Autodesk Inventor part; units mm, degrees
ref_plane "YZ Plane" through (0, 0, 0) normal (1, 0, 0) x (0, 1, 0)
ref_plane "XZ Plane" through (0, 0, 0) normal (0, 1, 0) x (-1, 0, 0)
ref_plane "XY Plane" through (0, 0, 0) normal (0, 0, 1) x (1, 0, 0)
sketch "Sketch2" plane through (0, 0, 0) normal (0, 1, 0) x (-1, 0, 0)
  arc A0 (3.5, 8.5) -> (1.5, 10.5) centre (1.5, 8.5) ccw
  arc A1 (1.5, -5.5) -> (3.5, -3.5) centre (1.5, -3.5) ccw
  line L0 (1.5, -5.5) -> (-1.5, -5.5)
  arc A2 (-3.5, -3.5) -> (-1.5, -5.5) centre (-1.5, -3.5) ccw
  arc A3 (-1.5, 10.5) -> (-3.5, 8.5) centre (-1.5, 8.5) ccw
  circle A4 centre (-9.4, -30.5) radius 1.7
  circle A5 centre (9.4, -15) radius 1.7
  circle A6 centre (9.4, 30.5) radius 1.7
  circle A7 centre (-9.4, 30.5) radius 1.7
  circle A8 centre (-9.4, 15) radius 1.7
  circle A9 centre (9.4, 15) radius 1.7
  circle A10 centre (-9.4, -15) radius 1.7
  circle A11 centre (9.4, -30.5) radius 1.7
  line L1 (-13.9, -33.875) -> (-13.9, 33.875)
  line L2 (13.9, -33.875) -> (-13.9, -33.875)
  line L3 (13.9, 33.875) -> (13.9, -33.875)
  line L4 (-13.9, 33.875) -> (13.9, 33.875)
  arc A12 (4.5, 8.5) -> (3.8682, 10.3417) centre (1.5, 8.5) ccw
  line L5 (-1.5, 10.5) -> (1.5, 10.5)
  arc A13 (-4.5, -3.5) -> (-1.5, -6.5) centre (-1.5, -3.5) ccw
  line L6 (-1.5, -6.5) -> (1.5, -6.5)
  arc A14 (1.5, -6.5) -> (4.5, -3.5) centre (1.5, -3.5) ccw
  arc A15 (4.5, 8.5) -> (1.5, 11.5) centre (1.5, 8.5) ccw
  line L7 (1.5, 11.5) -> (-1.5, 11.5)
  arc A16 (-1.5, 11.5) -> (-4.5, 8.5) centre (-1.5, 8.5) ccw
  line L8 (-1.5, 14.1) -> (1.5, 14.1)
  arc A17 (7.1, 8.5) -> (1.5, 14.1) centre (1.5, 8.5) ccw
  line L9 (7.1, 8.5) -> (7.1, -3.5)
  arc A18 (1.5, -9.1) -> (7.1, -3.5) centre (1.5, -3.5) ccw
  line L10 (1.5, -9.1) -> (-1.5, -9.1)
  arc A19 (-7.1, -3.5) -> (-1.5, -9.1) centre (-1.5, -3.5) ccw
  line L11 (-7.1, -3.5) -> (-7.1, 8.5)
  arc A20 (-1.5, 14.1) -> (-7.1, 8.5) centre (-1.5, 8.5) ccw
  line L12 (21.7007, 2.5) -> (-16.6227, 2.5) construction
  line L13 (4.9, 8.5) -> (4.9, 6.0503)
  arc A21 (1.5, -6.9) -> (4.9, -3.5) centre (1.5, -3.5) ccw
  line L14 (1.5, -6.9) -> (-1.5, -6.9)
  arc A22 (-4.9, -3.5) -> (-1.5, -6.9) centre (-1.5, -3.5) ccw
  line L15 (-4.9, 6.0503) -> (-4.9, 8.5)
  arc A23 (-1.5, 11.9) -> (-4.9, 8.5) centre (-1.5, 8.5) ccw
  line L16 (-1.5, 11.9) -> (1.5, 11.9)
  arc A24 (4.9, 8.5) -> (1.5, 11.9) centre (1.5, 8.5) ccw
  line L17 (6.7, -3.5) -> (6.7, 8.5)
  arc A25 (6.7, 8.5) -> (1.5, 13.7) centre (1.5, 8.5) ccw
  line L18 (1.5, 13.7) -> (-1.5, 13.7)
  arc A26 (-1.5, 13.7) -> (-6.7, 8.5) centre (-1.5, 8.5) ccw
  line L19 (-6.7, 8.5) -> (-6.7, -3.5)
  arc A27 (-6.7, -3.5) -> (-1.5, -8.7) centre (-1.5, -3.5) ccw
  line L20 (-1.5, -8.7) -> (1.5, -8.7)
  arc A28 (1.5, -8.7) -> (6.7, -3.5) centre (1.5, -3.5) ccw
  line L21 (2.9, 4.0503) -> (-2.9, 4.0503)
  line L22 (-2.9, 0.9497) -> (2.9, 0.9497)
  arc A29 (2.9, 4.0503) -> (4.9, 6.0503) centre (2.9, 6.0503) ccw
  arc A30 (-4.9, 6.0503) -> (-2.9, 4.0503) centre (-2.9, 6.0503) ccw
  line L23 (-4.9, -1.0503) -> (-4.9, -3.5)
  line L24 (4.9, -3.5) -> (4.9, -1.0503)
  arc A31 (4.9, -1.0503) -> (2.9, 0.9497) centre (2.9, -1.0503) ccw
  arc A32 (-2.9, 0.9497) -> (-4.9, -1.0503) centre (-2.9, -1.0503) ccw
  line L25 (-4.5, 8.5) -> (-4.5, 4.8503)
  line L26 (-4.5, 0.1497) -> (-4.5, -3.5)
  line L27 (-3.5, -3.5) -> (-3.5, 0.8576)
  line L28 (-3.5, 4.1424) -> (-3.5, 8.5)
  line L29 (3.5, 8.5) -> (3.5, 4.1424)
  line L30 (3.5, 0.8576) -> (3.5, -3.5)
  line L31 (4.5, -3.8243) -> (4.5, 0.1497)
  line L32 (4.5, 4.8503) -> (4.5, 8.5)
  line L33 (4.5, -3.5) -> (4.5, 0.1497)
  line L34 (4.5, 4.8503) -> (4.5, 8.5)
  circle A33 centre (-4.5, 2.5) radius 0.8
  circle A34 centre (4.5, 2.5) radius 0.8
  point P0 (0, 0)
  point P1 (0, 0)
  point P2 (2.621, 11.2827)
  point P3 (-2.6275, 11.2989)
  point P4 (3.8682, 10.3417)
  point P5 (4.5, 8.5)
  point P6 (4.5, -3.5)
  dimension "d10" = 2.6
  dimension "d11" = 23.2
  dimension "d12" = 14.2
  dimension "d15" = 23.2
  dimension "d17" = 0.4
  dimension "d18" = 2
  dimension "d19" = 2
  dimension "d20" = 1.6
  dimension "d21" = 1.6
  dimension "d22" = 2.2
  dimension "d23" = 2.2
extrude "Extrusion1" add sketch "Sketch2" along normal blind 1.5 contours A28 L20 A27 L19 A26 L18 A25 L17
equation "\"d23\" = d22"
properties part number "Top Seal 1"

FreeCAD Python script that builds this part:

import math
import FreeCAD as App
import Part
import Sketcher

V = App.Vector
Q = App.Units.Quantity

doc = App.newDocument("Part")
body = doc.addObject("PartDesign::Body", "Body")

# Sketch on XZ plane
sketch1 = body.newObject("Sketcher::SketchObject", "Sketch")
sketch1.AttachmentSupport = (doc.getObject("XZ_Plane"), [""])
sketch1.MapMode = "FlatFace"
sketch1.addGeometry(Part.ArcOfCircle(Part.Circle(V(-1.5, -3.5, 0), V(0, 0, 1), 5.2), math.radians(180), math.radians(270)), False)
sketch1.addGeometry(Part.LineSegment(V(-6.7, -3.5, 0), V(-6.7, 8.5, 0)), False)
sketch1.addGeometry(Part.ArcOfCircle(Part.Circle(V(-1.5, 8.5, 0), V(0, 0, 1), 5.2), math.radians(90), math.radians(180)), False)
sketch1.addGeometry(Part.LineSegment(V(-1.5, 13.7, 0), V(1.5, 13.7, 0)), False)
sketch1.addGeometry(Part.ArcOfCircle(Part.Circle(V(1.5, 8.5, 0), V(0, 0, 1), 5.2), math.radians(0), math.radians(90)), False)
sketch1.addGeometry(Part.LineSegment(V(6.7, 8.5, 0), V(6.7, -3.5, 0)), False)
sketch1.addGeometry(Part.ArcOfCircle(Part.Circle(V(1.5, -3.5, 0), V(0, 0, 1), 5.2), math.radians(-90), math.radians(0)), False)
sketch1.addGeometry(Part.LineSegment(V(1.5, -8.7, 0), V(-1.5, -8.7, 0)), False)
sketch1.addGeometry(Part.ArcOfCircle(Part.Circle(V(-2.9, -1.1, 0), V(0, 0, 1), 2), math.radians(90), math.radians(180)), False)
sketch1.addGeometry(Part.LineSegment(V(-4.9, -1.1, 0), V(-4.9, -3.5, 0)), False)
sketch1.addGeometry(Part.ArcOfCircle(Part.Circle(V(-1.5, -3.5, 0), V(0, 0, 1), 3.4), math.radians(180), math.radians(270)), False)
sketch1.addGeometry(Part.LineSegment(V(-1.5, -6.9, 0), V(1.5, -6.9, 0)), False)
sketch1.addGeometry(Part.ArcOfCircle(Part.Circle(V(1.5, -3.5, 0), V(0, 0, 1), 3.4), math.radians(-90), math.radians(0)), False)
sketch1.addGeometry(Part.LineSegment(V(4.9, -3.5, 0), V(4.9, -1.1, 0)), False)
sketch1.addGeometry(Part.ArcOfCircle(Part.Circle(V(2.9, -1.1, 0), V(0, 0, 1), 2), math.radians(0), math.radians(90)), False)
sketch1.addGeometry(Part.LineSegment(V(2.9, 0.9, 0), V(-2.9, 0.9, 0)), False)
sketch1.addGeometry(Part.Circle(V(4.5, 2.5, 0), V(0, 0, 1), 0.8), False)
sketch1.addGeometry(Part.ArcOfCircle(Part.Circle(V(-2.9, 6.1, 0), V(0, 0, 1), 2), math.radians(180), math.radians(270)), False)
sketch1.addGeometry(Part.LineSegment(V(-2.9, 4.1, 0), V(2.9, 4.1, 0)), False)
sketch1.addGeometry(Part.ArcOfCircle(Part.Circle(V(2.9, 6.1, 0), V(0, 0, 1), 2), math.radians(-90), math.radians(0)), False)
sketch1.addGeometry(Part.LineSegment(V(4.9, 6.1, 0), V(4.9, 8.5, 0)), False)
sketch1.addGeometry(Part.ArcOfCircle(Part.Circle(V(1.5, 8.5, 0), V(0, 0, 1), 3.4), math.radians(0), math.radians(90)), False)
sketch1.addGeometry(Part.LineSegment(V(1.5, 11.9, 0), V(-1.5, 11.9, 0)), False)
sketch1.addGeometry(Part.ArcOfCircle(Part.Circle(V(-1.5, 8.5, 0), V(0, 0, 1), 3.4), math.radians(90), math.radians(180)), False)
sketch1.addGeometry(Part.LineSegment(V(-4.9, 8.5, 0), V(-4.9, 6.1, 0)), False)
sketch1.addGeometry(Part.Circle(V(-4.5, 2.5, 0), V(0, 0, 1), 0.8), False)
sketch1.addConstraint(Sketcher.Constraint("Tangent", 0, 1, 1, 1))
sketch1.addConstraint(Sketcher.Constraint("Tangent", 1, 2, 2, 2))
sketch1.addConstraint(Sketcher.Constraint("Tangent", 2, 1, 3, 1))
sketch1.addConstraint(Sketcher.Constraint("Tangent", 3, 2, 4, 2))
sketch1.addConstraint(Sketcher.Constraint("Tangent", 4, 1, 5, 1))
sketch1.addConstraint(Sketcher.Constraint("Tangent", 5, 2, 6, 2))
sketch1.addConstraint(Sketcher.Constraint("Tangent", 6, 1, 7, 1))
sketch1.addConstraint(Sketcher.Constraint("Tangent", 7, 2, 0, 2))
sketch1.addConstraint(Sketcher.Constraint("Tangent", 8, 2, 9, 1))
sketch1.addConstraint(Sketcher.Constraint("Tangent", 9, 2, 10, 1))
sketch1.addConstraint(Sketcher.Constraint("Tangent", 10, 2, 11, 1))
sketch1.addConstraint(Sketcher.Constraint("Tangent", 11, 2, 12, 1))
sketch1.addConstraint(Sketcher.Constraint("Tangent", 12, 2, 13, 1))
sketch1.addConstraint(Sketcher.Constraint("Tangent", 13, 2, 14, 1))
sketch1.addConstraint(Sketcher.Constraint("Tangent", 14, 2, 15, 1))
sketch1.addConstraint(Sketcher.Constraint("Tangent", 15, 2, 8, 1))
sketch1.addConstraint(Sketcher.Constraint("Tangent", 17, 2, 18, 1))
sketch1.addConstraint(Sketcher.Constraint("Tangent", 18, 2, 19, 1))
sketch1.addConstraint(Sketcher.Constraint("Tangent", 19, 2, 20, 1))
sketch1.addConstraint(Sketcher.Constraint("Tangent", 20, 2, 21, 1))
sketch1.addConstraint(Sketcher.Constraint("Tangent", 21, 2, 22, 1))
sketch1.addConstraint(Sketcher.Constraint("Tangent", 22, 2, 23, 1))
sketch1.addConstraint(Sketcher.Constraint("Tangent", 23, 2, 24, 1))
sketch1.addConstraint(Sketcher.Constraint("Tangent", 24, 2, 17, 1))
sketch1.addConstraint(Sketcher.Constraint("Vertical", 1))
sketch1.addConstraint(Sketcher.Constraint("Horizontal", 3))
sketch1.addConstraint(Sketcher.Constraint("Vertical", 5))
sketch1.addConstraint(Sketcher.Constraint("Horizontal", 7))
sketch1.addConstraint(Sketcher.Constraint("Vertical", 9))
sketch1.addConstraint(Sketcher.Constraint("Horizontal", 11))
sketch1.addConstraint(Sketcher.Constraint("Vertical", 13))
sketch1.addConstraint(Sketcher.Constraint("Horizontal", 15))
sketch1.addConstraint(Sketcher.Constraint("Horizontal", 18))
sketch1.addConstraint(Sketcher.Constraint("Vertical", 20))
sketch1.addConstraint(Sketcher.Constraint("Horizontal", 22))
sketch1.addConstraint(Sketcher.Constraint("Vertical", 24))
sketch1.addConstraint(Sketcher.Constraint("Coincident", 10, 3, 0, 3))
sketch1.addConstraint(Sketcher.Constraint("Coincident", 12, 3, 6, 3))
sketch1.addConstraint(Sketcher.Constraint("Coincident", 21, 3, 4, 3))
sketch1.addConstraint(Sketcher.Constraint("Coincident", 23, 3, 2, 3))
sketch1.addConstraint(Sketcher.Constraint("Equal", 0, 2))
sketch1.addConstraint(Sketcher.Constraint("Equal", 2, 4))
sketch1.addConstraint(Sketcher.Constraint("Equal", 4, 6))
sketch1.addConstraint(Sketcher.Constraint("Equal", 8, 14))
sketch1.addConstraint(Sketcher.Constraint("Equal", 14, 17))
sketch1.addConstraint(Sketcher.Constraint("Equal", 17, 19))
sketch1.addConstraint(Sketcher.Constraint("Equal", 12, 21))
sketch1.addConstraint(Sketcher.Constraint("Equal", 16, 25))
sketch1.addConstraint(Sketcher.Constraint("Symmetric", 16, 3, 25, 3, -2))
sketch1.addConstraint(Sketcher.Constraint("Equal", 13, 20))
sketch1.addConstraint(Sketcher.Constraint("Radius", 8, Q("2 mm")))
sketch1.addConstraint(Sketcher.Constraint("Diameter", 16, Q("1.6 mm")))
sketch1.addConstraint(Sketcher.Constraint("Radius", 0, Q("5.2 mm")))
sketch1.addConstraint(Sketcher.Constraint("Radius", 10, Q("3.4 mm")))
sketch1.addConstraint(Sketcher.Constraint("DistanceX", 14, 3, 16, 3, Q("1.6 mm")))
sketch1.addConstraint(Sketcher.Constraint("DistanceX", 25, 3, 8, 3, Q("1.6 mm")))
sketch1.addConstraint(Sketcher.Constraint("DistanceX", 3, 1, 3, 2, Q("3 mm")))
sketch1.addConstraint(Sketcher.Constraint("DistanceY", 1, 1, 1, 2, Q("12 mm")))
sketch1.addConstraint(Sketcher.Constraint("DistanceY", 16, 3, 4, 3, Q("6 mm")))
sketch1.addConstraint(Sketcher.Constraint("DistanceY", 0, 3, -1, 1, Q("3.5 mm")))
sketch1.addConstraint(Sketcher.Constraint("DistanceY", 9, 2, 9, 1, Q("2.4497 mm")))
pad1 = body.newObject("PartDesign::Pad", "Pad")
pad1.Profile = sketch1
pad1.Length = 1.5
pad1.Reversed = True

doc.recompute()
